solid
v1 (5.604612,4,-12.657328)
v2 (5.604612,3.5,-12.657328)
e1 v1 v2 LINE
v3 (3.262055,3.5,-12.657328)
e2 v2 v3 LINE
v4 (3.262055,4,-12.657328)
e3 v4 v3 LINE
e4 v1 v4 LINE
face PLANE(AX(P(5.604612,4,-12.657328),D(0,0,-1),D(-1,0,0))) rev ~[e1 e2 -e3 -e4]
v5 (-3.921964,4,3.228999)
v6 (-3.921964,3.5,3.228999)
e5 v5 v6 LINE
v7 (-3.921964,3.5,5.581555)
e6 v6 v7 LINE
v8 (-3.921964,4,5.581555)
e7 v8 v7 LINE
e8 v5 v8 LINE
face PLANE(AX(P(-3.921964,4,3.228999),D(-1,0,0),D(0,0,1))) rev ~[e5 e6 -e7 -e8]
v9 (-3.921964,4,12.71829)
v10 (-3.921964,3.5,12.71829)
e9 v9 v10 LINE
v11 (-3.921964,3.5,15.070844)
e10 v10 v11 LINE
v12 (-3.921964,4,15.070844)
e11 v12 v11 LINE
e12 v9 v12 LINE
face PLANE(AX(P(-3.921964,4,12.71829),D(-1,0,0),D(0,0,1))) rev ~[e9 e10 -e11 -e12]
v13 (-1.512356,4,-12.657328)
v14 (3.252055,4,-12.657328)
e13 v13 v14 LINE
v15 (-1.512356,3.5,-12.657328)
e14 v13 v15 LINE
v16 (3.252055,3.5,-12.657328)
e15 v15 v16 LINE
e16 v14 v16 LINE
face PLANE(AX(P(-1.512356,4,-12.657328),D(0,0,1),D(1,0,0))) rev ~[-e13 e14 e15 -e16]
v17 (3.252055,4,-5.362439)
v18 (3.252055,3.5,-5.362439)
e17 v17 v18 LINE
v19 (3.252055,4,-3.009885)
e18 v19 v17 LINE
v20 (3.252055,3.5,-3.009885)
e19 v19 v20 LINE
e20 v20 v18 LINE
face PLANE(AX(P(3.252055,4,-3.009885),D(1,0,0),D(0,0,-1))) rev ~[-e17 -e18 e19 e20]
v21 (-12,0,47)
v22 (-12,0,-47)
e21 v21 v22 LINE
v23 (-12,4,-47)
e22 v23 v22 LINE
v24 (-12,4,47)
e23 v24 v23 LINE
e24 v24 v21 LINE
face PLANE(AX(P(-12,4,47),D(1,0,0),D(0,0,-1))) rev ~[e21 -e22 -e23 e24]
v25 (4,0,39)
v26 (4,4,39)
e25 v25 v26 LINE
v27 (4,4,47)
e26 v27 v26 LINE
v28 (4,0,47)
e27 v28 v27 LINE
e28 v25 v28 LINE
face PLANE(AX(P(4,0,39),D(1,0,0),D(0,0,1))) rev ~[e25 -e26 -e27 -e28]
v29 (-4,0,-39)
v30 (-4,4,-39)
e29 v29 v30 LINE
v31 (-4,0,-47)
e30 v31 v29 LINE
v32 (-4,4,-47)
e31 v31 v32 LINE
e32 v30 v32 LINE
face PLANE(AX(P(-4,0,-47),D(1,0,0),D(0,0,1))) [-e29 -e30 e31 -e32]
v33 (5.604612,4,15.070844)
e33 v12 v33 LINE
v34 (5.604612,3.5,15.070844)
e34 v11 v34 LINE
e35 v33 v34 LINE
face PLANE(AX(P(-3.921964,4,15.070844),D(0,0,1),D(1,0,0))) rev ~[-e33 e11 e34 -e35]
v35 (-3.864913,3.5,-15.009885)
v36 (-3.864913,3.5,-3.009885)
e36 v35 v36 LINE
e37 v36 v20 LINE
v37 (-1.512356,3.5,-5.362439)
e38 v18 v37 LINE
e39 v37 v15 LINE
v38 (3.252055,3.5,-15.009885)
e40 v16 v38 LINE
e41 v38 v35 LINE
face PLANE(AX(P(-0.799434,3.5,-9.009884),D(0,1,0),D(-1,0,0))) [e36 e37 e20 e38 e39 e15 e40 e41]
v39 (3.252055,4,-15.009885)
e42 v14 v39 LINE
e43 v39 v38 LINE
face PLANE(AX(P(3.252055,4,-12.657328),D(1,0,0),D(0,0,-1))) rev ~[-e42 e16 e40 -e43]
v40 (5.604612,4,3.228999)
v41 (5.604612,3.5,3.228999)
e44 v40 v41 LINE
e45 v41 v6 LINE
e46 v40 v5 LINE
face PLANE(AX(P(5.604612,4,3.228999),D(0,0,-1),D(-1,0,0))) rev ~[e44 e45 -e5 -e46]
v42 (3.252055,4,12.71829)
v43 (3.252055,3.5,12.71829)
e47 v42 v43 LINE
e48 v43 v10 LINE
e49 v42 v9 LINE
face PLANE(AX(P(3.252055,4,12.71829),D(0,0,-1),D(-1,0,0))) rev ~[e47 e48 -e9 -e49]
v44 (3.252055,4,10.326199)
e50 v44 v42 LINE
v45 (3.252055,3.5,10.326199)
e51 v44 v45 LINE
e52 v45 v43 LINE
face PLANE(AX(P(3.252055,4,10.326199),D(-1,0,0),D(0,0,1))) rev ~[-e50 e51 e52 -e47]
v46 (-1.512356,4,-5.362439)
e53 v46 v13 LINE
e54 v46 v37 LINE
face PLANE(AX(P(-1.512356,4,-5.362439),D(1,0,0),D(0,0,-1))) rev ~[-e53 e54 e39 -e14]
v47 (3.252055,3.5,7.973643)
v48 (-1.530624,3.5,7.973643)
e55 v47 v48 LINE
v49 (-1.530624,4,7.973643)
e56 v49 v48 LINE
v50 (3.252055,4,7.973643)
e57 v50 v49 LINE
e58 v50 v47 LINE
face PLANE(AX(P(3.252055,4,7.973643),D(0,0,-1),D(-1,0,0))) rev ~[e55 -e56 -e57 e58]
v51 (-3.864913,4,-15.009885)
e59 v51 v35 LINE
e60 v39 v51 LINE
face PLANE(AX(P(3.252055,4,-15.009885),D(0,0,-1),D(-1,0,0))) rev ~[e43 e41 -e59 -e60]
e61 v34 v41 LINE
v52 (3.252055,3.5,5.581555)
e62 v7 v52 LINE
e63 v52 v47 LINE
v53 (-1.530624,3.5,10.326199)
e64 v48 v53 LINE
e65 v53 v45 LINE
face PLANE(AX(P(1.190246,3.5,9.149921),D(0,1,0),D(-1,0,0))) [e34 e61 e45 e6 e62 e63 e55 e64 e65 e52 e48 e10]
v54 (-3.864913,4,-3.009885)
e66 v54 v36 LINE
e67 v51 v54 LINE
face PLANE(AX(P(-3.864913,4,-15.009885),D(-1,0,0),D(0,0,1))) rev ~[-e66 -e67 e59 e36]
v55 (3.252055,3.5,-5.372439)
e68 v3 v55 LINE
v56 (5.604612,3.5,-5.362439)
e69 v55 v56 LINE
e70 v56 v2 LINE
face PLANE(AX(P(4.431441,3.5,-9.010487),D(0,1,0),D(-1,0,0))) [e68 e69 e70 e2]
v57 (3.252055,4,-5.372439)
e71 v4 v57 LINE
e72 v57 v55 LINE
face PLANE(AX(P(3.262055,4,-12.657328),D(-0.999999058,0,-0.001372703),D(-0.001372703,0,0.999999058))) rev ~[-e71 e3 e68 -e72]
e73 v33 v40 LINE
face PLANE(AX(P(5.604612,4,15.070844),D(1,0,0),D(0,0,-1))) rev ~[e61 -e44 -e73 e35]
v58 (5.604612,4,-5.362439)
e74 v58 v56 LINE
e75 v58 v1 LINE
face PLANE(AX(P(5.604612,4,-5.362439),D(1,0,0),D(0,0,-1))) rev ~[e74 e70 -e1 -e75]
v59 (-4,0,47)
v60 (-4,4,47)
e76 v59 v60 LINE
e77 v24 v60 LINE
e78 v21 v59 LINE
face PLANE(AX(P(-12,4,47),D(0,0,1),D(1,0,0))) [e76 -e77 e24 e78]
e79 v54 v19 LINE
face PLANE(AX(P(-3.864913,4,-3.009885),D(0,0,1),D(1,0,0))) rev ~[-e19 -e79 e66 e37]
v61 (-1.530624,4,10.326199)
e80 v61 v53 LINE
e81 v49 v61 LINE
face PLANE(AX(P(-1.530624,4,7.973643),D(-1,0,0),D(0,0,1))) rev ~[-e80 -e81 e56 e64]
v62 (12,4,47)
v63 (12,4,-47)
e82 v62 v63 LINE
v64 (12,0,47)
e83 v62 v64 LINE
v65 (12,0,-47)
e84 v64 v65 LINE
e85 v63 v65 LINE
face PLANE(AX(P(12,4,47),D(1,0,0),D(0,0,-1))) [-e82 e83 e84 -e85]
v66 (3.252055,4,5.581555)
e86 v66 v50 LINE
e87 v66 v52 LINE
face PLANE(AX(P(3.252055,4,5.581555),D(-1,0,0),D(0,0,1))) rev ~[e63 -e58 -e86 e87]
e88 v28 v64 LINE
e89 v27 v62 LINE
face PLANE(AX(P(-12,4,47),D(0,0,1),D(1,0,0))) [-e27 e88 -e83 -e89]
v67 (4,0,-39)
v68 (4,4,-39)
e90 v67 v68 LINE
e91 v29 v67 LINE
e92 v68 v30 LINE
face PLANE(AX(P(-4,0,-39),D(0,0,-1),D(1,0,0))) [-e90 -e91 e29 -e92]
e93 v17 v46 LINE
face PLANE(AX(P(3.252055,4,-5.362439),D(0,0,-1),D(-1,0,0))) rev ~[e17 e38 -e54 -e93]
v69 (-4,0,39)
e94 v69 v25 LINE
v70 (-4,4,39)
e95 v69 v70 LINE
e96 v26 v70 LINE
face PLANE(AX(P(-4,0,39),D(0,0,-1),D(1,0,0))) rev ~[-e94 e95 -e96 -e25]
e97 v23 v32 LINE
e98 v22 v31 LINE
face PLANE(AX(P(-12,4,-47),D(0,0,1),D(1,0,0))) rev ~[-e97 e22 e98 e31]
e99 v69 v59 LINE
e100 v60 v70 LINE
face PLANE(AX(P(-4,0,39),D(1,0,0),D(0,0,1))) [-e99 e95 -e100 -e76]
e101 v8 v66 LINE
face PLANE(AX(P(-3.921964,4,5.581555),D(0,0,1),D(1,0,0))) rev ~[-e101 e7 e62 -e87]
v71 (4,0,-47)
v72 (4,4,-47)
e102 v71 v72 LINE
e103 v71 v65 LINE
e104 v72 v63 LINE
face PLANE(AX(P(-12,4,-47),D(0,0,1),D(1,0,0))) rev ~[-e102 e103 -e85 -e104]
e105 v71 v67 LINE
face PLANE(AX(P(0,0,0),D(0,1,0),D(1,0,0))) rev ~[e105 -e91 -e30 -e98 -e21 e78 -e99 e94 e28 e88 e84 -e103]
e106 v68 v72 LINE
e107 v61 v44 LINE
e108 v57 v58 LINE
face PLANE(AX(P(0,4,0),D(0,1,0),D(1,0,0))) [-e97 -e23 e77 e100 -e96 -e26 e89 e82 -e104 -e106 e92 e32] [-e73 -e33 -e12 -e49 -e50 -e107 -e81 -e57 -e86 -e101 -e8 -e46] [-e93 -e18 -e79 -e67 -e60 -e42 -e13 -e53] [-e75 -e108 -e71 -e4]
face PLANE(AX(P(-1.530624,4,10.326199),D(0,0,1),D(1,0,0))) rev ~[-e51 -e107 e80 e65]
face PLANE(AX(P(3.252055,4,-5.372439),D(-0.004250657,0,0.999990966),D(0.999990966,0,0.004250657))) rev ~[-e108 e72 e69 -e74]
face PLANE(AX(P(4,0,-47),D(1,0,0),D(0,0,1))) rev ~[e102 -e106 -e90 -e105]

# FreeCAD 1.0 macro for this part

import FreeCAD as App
import Part
import Sketcher

doc = App.newDocument("Part")
body = doc.addObject("PartDesign::Body", "Body")

sketch1 = doc.addObject("Sketcher::SketchObject", "Sketch")
body.addObject(sketch1)
sketch1.AttachmentSupport = (doc.XZ_Plane, [""])
sketch1.MapMode = "FlatFace"
sketch1.AttachmentOffset = App.Placement(App.Vector(0, 0, -4), App.Rotation())
sketch1.addGeometry([
    Part.LineSegment(App.Vector(-12, -47, 0), App.Vector(-12, 47, 0)),
    Part.LineSegment(App.Vector(-12, 47, 0), App.Vector(12, 47, 0)),
    Part.LineSegment(App.Vector(12, 47, 0), App.Vector(12, -47, 0)),
    Part.LineSegment(App.Vector(12, -47, 0), App.Vector(-12, -47, 0)),
], False)
sketch1.addConstraint([
    Sketcher.Constraint("Coincident", 0, 2, 1, 1),
    Sketcher.Constraint("Coincident", 1, 2, 2, 1),
    Sketcher.Constraint("Coincident", 2, 2, 3, 1),
    Sketcher.Constraint("Coincident", 3, 2, 0, 1),
    Sketcher.Constraint("Vertical", 0),
    Sketcher.Constraint("Horizontal", 1),
    Sketcher.Constraint("Vertical", 2),
    Sketcher.Constraint("Horizontal", 3),
    Sketcher.Constraint("Symmetric", 0, 2, 2, 2, -1, 1),
    Sketcher.Constraint("DistanceX", 1, 1, 1, 2, 24.0),
    Sketcher.Constraint("DistanceY", 0, 1, 0, 2, 94.0),
])
pad1 = doc.addObject("PartDesign::Pad", "Pad")
body.addObject(pad1)
pad1.Profile = sketch1
pad1.Length = 4

sketch2 = doc.addObject("Sketcher::SketchObject", "Sketch001")
body.addObject(sketch2)
sketch2.AttachmentSupport = (doc.XZ_Plane, [""])
sketch2.MapMode = "FlatFace"
sketch2.addGeometry([
    Part.LineSegment(App.Vector(-4, -39, 0), App.Vector(-4, -47, 0)),
    Part.LineSegment(App.Vector(-4, -47, 0), App.Vector(4, -47, 0)),
    Part.LineSegment(App.Vector(4, -47, 0), App.Vector(4, -39, 0)),
    Part.LineSegment(App.Vector(4, -39, 0), App.Vector(-4, -39, 0)),
], False)
sketch2.addConstraint([
    Sketcher.Constraint("Coincident", 0, 2, 1, 1),
    Sketcher.Constraint("Coincident", 1, 2, 2, 1),
    Sketcher.Constraint("Coincident", 2, 2, 3, 1),
    Sketcher.Constraint("Coincident", 3, 2, 0, 1),
    Sketcher.Constraint("Vertical", 0),
    Sketcher.Constraint("Horizontal", 1),
    Sketcher.Constraint("Vertical", 2),
    Sketcher.Constraint("Horizontal", 3),
    Sketcher.Constraint("Equal", 3, 0),
    Sketcher.Constraint("DistanceX", 1, 1, 1, 2, 8.0),
    Sketcher.Constraint("DistanceX", 0, 2, -1, 1, 4.0),
    Sketcher.Constraint("DistanceY", 0, 2, -1, 1, 47.0),
])
pocket1 = doc.addObject("PartDesign::Pocket", "Pocket")
body.addObject(pocket1)
pocket1.Profile = sketch2
pocket1.Type = "ThroughAll"

sketch3 = doc.addObject("Sketcher::SketchObject", "Sketch002")
body.addObject(sketch3)
sketch3.AttachmentSupport = (doc.XZ_Plane, [""])
sketch3.MapMode = "FlatFace"
sketch3.addGeometry([
    Part.LineSegment(App.Vector(-4, 47, 0), App.Vector(-4, 39, 0)),
    Part.LineSegment(App.Vector(-4, 39, 0), App.Vector(4, 39, 0)),
    Part.LineSegment(App.Vector(4, 39, 0), App.Vector(4, 47, 0)),
    Part.LineSegment(App.Vector(4, 47, 0), App.Vector(-4, 47, 0)),
], False)
sketch3.addConstraint([
    Sketcher.Constraint("Coincident", 0, 2, 1, 1),
    Sketcher.Constraint("Coincident", 1, 2, 2, 1),
    Sketcher.Constraint("Coincident", 2, 2, 3, 1),
    Sketcher.Constraint("Coincident", 3, 2, 0, 1),
    Sketcher.Constraint("Vertical", 0),
    Sketcher.Constraint("Horizontal", 1),
    Sketcher.Constraint("Vertical", 2),
    Sketcher.Constraint("Horizontal", 3),
    Sketcher.Constraint("Equal", 3, 0),
    Sketcher.Constraint("DistanceX", 1, 1, 1, 2, 8.0),
    Sketcher.Constraint("DistanceX", 0, 2, -1, 1, 4.0),
    Sketcher.Constraint("DistanceY", -1, 1, 0, 2, 39.0),
])
pocket2 = doc.addObject("PartDesign::Pocket", "Pocket001")
body.addObject(pocket2)
pocket2.Profile = sketch3
pocket2.Type = "ThroughAll"

sketch4 = doc.addObject("Sketcher::SketchObject", "Sketch003")
body.addObject(sketch4)
sketch4.AttachmentSupport = (doc.XZ_Plane, [""])
sketch4.MapMode = "FlatFace"
sketch4.AttachmentOffset = App.Placement(App.Vector(0, 0, -4), App.Rotation())
sketch4.addGeometry([
    Part.LineSegment(App.Vector(5.6, 15.1, 0), App.Vector(5.6, 3.2, 0)),
    Part.LineSegment(App.Vector(5.6, 3.2, 0), App.Vector(-3.9, 3.2, 0)),
    Part.LineSegment(App.Vector(-3.9, 3.2, 0), App.Vector(-3.9, 5.6, 0)),
    Part.LineSegment(App.Vector(-3.9, 5.6, 0), App.Vector(3.3, 5.6, 0)),
    Part.LineSegment(App.Vector(3.3, 5.6, 0), App.Vector(3.3, 8, 0)),
    Part.LineSegment(App.Vector(3.3, 8, 0), App.Vector(-1.5, 8, 0)),
    Part.LineSegment(App.Vector(-1.5, 8, 0), App.Vector(-1.5, 10.3, 0)),
    Part.LineSegment(App.Vector(-1.5, 10.3, 0), App.Vector(3.3, 10.3, 0)),
    Part.LineSegment(App.Vector(3.3, 10.3, 0), App.Vector(3.3, 12.7, 0)),
    Part.LineSegment(App.Vector(3.3, 12.7, 0), App.Vector(-3.9, 12.7, 0)),
    Part.LineSegment(App.Vector(-3.9, 12.7, 0), App.Vector(-3.9, 15.1, 0)),
    Part.LineSegment(App.Vector(-3.9, 15.1, 0), App.Vector(5.6, 15.1, 0)),
], False)
sketch4.addConstraint([
    Sketcher.Constraint("Coincident", 0, 2, 1, 1),
    Sketcher.Constraint("Coincident", 1, 2, 2, 1),
    Sketcher.Constraint("Coincident", 2, 2, 3, 1),
    Sketcher.Constraint("Coincident", 3, 2, 4, 1),
    Sketcher.Constraint("Coincident", 4, 2, 5, 1),
    Sketcher.Constraint("Coincident", 5, 2, 6, 1),
    Sketcher.Constraint("Coincident", 6, 2, 7, 1),
    Sketcher.Constraint("Coincident", 7, 2, 8, 1),
    Sketcher.Constraint("Coincident", 8, 2, 9, 1),
    Sketcher.Constraint("Coincident", 9, 2, 10, 1),
    Sketcher.Constraint("Coincident", 10, 2, 11, 1),
    Sketcher.Constraint("Coincident", 11, 2, 0, 1),
    Sketcher.Constraint("Vertical", 0),
    Sketcher.Constraint("Horizontal", 1),
    Sketcher.Constraint("Vertical", 2),
    Sketcher.Constraint("Horizontal", 3),
    Sketcher.Constraint("Vertical", 4),
    Sketcher.Constraint("Horizontal", 5),
    Sketcher.Constraint("Vertical", 6),
    Sketcher.Constraint("Horizontal", 7),
    Sketcher.Constraint("Vertical", 8),
    Sketcher.Constraint("Horizontal", 9),
    Sketcher.Constraint("Vertical", 10),
    Sketcher.Constraint("Horizontal", 11),
    Sketcher.Constraint("Vertical", 4, 2, 7, 2),
    Sketcher.Constraint("Vertical", 2, 2, 9, 2),
    Sketcher.Constraint("Equal", 2, 6),
    Sketcher.Constraint("DistanceY", -1, 1, 0, 2, 3.228999),
    Sketcher.Constraint("DistanceX", 3, 1, 3, 2, 7.174019),
    Sketcher.Constraint("DistanceX", 5, 2, 5, 1, 4.78268),
    Sketcher.Constraint("DistanceY", 8, 1, 8, 2, 2.39209),
    Sketcher.Constraint("DistanceY", -1, 1, 6, 2, 10.326199),
    Sketcher.Constraint("DistanceY", 5, 2, 10, 2, 7.097201),
    Sketcher.Constraint("DistanceX", 1, 2, 1, 1, 9.526576),
    Sketcher.Constraint("DistanceY", 0, 2, 0, 1, 11.841845),
    Sketcher.Constraint("DistanceX", -1, 1, 0, 2, 5.604612),
])
pocket3 = doc.addObject("PartDesign::Pocket", "Pocket002")
body.addObject(pocket3)
pocket3.Profile = sketch4
pocket3.Length = 0.5
pocket3.Reversed = True

sketch5 = doc.addObject("Sketcher::SketchObject", "Sketch004")
body.addObject(sketch5)
sketch5.AttachmentSupport = (doc.XZ_Plane, [""])
sketch5.MapMode = "FlatFace"
sketch5.AttachmentOffset = App.Placement(App.Vector(0, 0, -4), App.Rotation())
sketch5.addGeometry([
    Part.LineSegment(App.Vector(-1.5, -5.4, 0), App.Vector(-1.5, -12.7, 0)),
    Part.LineSegment(App.Vector(-1.5, -12.7, 0), App.Vector(3.3, -12.7, 0)),
    Part.LineSegment(App.Vector(3.3, -12.7, 0), App.Vector(3.3, -15, 0)),
    Part.LineSegment(App.Vector(3.3, -15, 0), App.Vector(-3.9, -15, 0)),
    Part.LineSegment(App.Vector(-3.9, -15, 0), App.Vector(-3.9, -3, 0)),
    Part.LineSegment(App.Vector(-3.9, -3, 0), App.Vector(3.3, -3, 0)),
    Part.LineSegment(App.Vector(3.3, -3, 0), App.Vector(3.3, -5.4, 0)),
    Part.LineSegment(App.Vector(3.3, -5.4, 0), App.Vector(-1.5, -5.4, 0)),
], False)
sketch5.addConstraint([
    Sketcher.Constraint("Coincident", 0, 2, 1, 1),
    Sketcher.Constraint("Coincident", 1, 2, 2, 1),
    Sketcher.Constraint("Coincident", 2, 2, 3, 1),
    Sketcher.Constraint("Coincident", 3, 2, 4, 1),
    Sketcher.Constraint("Coincident", 4, 2, 5, 1),
    Sketcher.Constraint("Coincident", 5, 2, 6, 1),
    Sketcher.Constraint("Coincident", 6, 2, 7, 1),
    Sketcher.Constraint("Coincident", 7, 2, 0, 1),
    Sketcher.Constraint("Vertical", 0),
    Sketcher.Constraint("Horizontal", 1),
    Sketcher.Constraint("Vertical", 2),
    Sketcher.Constraint("Horizontal", 3),
    Sketcher.Constraint("Vertical", 4),
    Sketcher.Constraint("Horizontal", 5),
    Sketcher.Constraint("Vertical", 6),
    Sketcher.Constraint("Horizontal", 7),
    Sketcher.Constraint("Vertical", 2, 2, 5, 2),
    Sketcher.Constraint("DistanceY", 4, 1, 4, 2, 12.0),
    Sketcher.Constraint("DistanceX", 1, 1, 1, 2, 4.764411),
    Sketcher.Constraint("DistanceY", 0, 2, 0, 1, 7.29489),
    Sketcher.Constraint("DistanceX", 3, 2, 3, 1, 7.116968),
    Sketcher.Constraint("DistanceY", 2, 2, 2, 1, 2.352556),
    Sketcher.Constraint("DistanceY", 0, 2, -1, 1, 12.657328),
    Sketcher.Constraint("DistanceX", 0, 2, -1, 1, 1.512356),
])
pocket4 = doc.addObject("PartDesign::Pocket", "Pocket003")
body.addObject(pocket4)
pocket4.Profile = sketch5
pocket4.Length = 0.5
pocket4.Reversed = True

sketch6 = doc.addObject("Sketcher::SketchObject", "Sketch005")
body.addObject(sketch6)
sketch6.AttachmentSupport = (doc.XZ_Plane, [""])
sketch6.MapMode = "FlatFace"
sketch6.AttachmentOffset = App.Placement(App.Vector(0, 0, -4), App.Rotation())
sketch6.addGeometry([
    Part.LineSegment(App.Vector(5.6, -12.7, 0), App.Vector(3.3, -12.7, 0)),
    Part.LineSegment(App.Vector(3.3, -12.7, 0), App.Vector(3.3, -5.4, 0)),
    Part.LineSegment(App.Vector(3.3, -5.4, 0), App.Vector(5.6, -5.4, 0)),
    Part.LineSegment(App.Vector(5.6, -5.4, 0), App.Vector(5.6, -12.7, 0)),
], False)
sketch6.addConstraint([
    Sketcher.Constraint("Coincident", 0, 2, 1, 1),
    Sketcher.Constraint("Coincident", 1, 2, 2, 1),
    Sketcher.Constraint("Coincident", 2, 2, 3, 1),
    Sketcher.Constraint("Coincident", 3, 2, 0, 1),
    Sketcher.Constraint("Horizontal", 0),
    Sketcher.Constraint("Vertical", 3),
    Sketcher.Constraint("DistanceX", 1, 2, 0, 2, 0.01),
    Sketcher.Constraint("DistanceY", 1, 2, 2, 2, 0.01),
    Sketcher.Constraint("DistanceY", 3, 2, 3, 1, 7.29489),
    Sketcher.Constraint("DistanceX", 0, 2, 0, 1, 2.342556),
    Sketcher.Constraint("DistanceY", 0, 2, -1, 1, 12.657328),
    Sketcher.Constraint("DistanceX", -1, 1, 2, 2, 5.604612),
])
pocket5 = doc.addObject("PartDesign::Pocket", "Pocket004")
body.addObject(pocket5)
pocket5.Profile = sketch6
pocket5.Length = 0.5
pocket5.Reversed = True

doc.recompute()
